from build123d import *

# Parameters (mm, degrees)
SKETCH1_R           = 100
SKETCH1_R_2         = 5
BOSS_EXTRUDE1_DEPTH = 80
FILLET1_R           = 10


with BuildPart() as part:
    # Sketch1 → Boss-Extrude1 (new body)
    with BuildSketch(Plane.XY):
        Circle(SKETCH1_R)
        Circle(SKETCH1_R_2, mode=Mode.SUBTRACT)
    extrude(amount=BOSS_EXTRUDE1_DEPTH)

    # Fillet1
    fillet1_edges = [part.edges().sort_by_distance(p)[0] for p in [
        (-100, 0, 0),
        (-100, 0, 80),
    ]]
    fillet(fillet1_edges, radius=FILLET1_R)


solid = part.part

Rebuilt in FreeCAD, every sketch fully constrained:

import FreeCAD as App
import Part
import Sketcher


def edges_at(feature, points):
    """Names of the edges that pass closest to the given points."""
    edges = feature.Shape.Edges
    near = lambda p: min(range(len(edges)), key=lambda i: edges[i].distToShape(Part.Vertex(*p))[0])
    return sorted({f"Edge{near(p) + 1}" for p in points})

doc = App.newDocument("Part")
body = doc.addObject("PartDesign::Body", "Body")

sketch1 = doc.addObject("Sketcher::SketchObject", "Sketch")
body.addObject(sketch1)
sketch1.AttachmentSupport = (doc.XY_Plane, [""])
sketch1.MapMode = "FlatFace"
sketch1.addGeometry(Part.Circle(App.Vector(0, 0, 0), App.Vector(0, 0, 1), 100), False)
sketch1.addGeometry(Part.Circle(App.Vector(0, 0, 0), App.Vector(0, 0, 1), 5), False)
sketch1.addConstraint(Sketcher.Constraint("Coincident", 0, 3, -1, 1))
sketch1.addConstraint(Sketcher.Constraint("Coincident", 1, 3, -1, 1))
sketch1.addConstraint(Sketcher.Constraint("Diameter", 0, 200.0))
sketch1.addConstraint(Sketcher.Constraint("Diameter", 1, 10.0))
pad1 = doc.addObject("PartDesign::Pad", "Pad")
body.addObject(pad1)
pad1.Profile = sketch1
pad1.Length = 80
doc.recompute()

fillet = doc.addObject("PartDesign::Fillet", "Fillet")
body.addObject(fillet)
fillet.Base = (pad1, edges_at(pad1, [(-100, 0, 0), (-100, 0, 80)]))
fillet.Radius = 10

doc.recompute()
